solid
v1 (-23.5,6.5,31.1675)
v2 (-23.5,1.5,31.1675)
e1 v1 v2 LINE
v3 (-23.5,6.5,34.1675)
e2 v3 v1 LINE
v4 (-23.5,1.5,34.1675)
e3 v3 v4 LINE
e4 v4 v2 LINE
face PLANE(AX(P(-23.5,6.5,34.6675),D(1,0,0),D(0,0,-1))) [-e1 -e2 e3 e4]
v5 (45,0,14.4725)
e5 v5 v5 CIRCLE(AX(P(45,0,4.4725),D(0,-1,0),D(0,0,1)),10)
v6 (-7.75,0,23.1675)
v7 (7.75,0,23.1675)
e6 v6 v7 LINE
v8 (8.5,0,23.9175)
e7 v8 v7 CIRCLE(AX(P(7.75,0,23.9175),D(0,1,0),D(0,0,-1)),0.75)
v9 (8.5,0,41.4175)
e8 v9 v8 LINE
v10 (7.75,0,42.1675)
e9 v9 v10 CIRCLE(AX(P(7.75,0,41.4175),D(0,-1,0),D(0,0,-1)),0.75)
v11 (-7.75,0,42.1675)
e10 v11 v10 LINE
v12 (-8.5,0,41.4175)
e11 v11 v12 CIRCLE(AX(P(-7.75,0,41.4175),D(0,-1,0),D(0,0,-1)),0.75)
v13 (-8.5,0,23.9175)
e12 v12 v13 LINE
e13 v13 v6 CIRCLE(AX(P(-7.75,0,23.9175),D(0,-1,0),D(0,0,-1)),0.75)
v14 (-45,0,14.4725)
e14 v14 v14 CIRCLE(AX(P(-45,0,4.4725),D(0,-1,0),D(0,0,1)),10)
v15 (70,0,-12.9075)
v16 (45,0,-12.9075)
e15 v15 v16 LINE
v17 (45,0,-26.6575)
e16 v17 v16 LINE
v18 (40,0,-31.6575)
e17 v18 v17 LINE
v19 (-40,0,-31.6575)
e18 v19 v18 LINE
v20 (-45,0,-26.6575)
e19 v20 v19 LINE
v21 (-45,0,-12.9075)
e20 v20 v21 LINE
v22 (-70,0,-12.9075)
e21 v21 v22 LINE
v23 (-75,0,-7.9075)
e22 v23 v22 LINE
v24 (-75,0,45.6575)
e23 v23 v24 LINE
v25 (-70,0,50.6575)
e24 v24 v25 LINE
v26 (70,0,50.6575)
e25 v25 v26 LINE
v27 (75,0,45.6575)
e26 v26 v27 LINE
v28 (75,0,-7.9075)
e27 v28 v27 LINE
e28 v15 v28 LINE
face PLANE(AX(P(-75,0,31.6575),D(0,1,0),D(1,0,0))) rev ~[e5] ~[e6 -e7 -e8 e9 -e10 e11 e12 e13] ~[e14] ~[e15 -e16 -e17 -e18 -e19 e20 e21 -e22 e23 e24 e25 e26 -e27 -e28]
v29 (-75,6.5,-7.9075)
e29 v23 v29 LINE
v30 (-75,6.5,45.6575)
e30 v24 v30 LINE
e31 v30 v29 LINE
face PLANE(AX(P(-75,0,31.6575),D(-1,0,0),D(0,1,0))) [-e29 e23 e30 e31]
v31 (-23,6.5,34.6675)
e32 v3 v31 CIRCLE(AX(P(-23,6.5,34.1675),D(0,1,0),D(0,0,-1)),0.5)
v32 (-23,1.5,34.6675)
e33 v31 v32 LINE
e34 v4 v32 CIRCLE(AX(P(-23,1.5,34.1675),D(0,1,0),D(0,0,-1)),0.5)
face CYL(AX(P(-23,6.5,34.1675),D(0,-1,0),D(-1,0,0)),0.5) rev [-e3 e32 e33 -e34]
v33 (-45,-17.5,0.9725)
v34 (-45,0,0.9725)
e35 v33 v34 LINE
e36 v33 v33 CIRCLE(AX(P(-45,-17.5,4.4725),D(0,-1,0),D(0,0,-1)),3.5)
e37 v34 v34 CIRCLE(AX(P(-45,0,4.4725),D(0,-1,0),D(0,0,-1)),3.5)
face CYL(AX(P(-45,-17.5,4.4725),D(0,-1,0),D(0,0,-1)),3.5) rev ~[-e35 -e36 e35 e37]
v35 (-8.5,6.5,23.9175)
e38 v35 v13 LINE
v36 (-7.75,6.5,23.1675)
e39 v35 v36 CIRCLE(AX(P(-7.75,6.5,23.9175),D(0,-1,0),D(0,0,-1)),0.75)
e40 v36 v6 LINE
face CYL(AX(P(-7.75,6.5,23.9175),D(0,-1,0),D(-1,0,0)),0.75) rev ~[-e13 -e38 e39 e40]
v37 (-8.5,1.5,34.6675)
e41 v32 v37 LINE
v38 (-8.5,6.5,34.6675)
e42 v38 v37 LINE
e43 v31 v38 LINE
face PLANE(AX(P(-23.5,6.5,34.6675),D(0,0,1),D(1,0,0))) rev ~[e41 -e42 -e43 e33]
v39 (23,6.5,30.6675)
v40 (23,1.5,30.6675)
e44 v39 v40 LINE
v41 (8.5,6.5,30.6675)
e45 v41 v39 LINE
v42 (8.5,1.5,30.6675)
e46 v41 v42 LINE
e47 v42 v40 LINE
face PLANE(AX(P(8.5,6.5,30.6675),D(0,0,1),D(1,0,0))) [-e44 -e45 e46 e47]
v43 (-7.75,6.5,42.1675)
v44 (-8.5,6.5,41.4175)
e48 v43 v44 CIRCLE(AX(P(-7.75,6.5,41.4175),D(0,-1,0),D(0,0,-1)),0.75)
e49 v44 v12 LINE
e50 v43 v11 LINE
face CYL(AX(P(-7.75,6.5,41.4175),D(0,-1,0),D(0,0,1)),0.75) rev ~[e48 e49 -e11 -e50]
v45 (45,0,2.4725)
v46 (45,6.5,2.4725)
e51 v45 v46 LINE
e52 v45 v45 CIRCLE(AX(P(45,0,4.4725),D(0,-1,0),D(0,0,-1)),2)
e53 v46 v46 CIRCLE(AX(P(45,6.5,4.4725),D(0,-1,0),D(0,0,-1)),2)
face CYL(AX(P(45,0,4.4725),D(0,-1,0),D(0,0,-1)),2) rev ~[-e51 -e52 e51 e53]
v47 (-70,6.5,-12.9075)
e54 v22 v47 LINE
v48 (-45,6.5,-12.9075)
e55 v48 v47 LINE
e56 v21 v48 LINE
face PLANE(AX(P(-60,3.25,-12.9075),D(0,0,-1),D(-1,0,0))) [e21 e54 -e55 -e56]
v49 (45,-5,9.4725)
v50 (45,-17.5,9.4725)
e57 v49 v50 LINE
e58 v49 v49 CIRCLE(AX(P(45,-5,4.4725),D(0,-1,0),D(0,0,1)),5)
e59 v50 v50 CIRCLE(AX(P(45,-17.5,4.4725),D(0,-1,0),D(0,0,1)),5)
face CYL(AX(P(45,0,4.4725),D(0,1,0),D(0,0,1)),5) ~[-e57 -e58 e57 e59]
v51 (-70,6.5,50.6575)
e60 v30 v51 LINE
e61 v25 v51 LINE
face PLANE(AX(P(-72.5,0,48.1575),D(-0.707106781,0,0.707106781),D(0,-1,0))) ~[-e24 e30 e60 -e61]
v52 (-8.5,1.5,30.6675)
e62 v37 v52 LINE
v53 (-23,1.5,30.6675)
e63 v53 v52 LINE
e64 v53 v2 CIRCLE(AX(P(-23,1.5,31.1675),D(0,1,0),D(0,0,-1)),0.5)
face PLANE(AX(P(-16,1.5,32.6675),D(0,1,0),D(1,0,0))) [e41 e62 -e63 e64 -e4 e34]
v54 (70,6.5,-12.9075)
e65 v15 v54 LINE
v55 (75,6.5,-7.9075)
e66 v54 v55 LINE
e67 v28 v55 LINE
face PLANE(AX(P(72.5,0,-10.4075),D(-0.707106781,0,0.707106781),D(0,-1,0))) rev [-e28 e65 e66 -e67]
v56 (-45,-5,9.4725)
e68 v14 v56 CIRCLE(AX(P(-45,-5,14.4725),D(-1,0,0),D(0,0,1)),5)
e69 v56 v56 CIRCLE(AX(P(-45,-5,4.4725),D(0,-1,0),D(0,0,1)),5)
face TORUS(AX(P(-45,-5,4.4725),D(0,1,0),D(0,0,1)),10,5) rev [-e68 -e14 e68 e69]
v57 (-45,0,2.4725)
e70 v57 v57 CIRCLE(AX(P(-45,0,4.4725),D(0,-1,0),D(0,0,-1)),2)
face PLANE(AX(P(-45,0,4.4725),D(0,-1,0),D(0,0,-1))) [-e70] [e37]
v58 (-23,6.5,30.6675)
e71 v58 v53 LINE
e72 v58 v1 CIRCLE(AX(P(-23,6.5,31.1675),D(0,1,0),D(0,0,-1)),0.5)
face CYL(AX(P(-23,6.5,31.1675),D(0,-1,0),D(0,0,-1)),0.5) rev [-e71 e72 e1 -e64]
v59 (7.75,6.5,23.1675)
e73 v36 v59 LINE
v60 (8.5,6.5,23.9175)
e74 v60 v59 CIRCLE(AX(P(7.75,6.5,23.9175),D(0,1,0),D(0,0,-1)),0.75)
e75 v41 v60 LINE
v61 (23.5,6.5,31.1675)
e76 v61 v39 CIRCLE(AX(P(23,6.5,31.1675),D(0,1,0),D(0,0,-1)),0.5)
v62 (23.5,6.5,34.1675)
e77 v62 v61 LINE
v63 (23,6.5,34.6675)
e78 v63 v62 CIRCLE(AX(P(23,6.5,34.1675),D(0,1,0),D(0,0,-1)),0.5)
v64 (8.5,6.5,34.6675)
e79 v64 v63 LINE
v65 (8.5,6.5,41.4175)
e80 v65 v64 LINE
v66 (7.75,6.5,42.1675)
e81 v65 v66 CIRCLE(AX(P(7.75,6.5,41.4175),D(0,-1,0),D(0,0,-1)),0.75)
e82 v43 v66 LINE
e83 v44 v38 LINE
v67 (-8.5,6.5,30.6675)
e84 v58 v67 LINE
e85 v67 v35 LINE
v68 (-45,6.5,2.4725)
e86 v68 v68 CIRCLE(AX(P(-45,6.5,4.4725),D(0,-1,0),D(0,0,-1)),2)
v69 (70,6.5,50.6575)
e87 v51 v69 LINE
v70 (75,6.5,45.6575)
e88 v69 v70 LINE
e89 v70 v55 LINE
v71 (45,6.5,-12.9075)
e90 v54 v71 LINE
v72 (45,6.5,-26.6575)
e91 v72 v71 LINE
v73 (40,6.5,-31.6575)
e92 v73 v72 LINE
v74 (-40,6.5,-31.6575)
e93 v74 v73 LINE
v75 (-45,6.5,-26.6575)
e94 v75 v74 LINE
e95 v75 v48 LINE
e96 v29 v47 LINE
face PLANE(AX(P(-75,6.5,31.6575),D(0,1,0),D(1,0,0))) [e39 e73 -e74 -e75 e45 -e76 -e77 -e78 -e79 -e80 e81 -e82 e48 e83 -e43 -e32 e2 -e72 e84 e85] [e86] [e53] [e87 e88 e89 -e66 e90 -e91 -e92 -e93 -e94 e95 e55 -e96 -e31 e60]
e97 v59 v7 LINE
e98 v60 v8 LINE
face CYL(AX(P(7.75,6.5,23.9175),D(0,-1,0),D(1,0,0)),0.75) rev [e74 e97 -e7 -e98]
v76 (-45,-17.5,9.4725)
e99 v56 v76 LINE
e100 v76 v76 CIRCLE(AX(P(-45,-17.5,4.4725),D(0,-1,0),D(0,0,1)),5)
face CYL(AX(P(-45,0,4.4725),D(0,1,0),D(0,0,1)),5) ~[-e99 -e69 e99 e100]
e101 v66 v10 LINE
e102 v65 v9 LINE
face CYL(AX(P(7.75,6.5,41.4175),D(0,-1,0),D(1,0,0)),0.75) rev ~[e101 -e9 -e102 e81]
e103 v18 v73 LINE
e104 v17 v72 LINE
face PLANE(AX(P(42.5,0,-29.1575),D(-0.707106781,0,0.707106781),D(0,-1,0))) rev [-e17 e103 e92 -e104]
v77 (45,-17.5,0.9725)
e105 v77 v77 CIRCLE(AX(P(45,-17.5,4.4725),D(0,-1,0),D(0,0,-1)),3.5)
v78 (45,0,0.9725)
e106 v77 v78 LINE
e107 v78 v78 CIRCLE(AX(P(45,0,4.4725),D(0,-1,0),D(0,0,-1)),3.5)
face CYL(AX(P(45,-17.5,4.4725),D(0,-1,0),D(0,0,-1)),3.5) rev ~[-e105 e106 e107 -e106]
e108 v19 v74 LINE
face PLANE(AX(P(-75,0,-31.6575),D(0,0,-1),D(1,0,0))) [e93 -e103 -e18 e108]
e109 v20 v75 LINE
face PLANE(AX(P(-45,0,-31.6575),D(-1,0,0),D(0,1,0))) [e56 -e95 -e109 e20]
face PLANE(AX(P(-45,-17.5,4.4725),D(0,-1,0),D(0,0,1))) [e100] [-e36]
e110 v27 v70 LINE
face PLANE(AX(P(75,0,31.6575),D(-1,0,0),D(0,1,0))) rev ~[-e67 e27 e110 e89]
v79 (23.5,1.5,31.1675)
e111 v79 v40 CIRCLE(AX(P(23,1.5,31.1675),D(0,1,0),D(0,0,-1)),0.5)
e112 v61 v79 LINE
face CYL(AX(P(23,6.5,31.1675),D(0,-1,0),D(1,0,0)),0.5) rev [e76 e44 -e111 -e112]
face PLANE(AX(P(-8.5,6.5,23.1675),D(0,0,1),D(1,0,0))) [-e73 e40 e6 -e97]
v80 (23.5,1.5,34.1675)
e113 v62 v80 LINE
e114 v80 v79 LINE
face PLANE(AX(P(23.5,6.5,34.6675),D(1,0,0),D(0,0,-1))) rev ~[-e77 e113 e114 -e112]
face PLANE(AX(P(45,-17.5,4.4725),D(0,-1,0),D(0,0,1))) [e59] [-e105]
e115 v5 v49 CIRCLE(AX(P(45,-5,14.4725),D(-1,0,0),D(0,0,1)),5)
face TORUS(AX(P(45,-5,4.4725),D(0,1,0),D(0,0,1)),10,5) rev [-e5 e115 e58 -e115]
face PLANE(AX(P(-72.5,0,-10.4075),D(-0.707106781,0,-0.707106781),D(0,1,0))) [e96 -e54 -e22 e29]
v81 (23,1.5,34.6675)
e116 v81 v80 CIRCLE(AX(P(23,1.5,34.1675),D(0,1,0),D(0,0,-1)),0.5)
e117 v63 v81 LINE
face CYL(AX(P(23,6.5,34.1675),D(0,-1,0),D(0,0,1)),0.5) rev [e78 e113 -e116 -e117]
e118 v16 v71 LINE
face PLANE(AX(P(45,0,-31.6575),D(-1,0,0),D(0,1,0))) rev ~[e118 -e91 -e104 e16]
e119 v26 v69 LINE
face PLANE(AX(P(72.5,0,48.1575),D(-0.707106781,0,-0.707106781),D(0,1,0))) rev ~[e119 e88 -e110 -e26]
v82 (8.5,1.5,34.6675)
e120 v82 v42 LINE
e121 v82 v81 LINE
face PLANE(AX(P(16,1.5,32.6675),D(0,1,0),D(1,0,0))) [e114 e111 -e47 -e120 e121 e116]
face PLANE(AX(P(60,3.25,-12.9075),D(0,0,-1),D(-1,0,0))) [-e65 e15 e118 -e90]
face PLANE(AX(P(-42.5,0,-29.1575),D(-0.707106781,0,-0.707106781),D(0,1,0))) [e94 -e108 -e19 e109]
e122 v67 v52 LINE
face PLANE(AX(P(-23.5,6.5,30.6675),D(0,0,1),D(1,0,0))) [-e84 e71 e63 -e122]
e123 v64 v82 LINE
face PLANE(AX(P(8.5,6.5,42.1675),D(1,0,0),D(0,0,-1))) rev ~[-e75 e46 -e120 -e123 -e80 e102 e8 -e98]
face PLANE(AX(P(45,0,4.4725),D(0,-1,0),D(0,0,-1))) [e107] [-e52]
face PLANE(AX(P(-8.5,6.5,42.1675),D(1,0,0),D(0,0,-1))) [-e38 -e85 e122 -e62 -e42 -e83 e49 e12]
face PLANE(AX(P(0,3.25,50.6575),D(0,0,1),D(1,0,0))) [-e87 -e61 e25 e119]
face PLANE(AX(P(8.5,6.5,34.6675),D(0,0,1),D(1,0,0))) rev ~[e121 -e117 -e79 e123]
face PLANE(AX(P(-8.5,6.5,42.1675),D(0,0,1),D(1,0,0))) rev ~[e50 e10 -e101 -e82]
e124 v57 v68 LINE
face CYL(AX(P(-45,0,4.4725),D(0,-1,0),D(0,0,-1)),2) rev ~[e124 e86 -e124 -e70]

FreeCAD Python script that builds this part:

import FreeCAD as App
import Part
import Sketcher


def edges_at(feature, points):
    """Names of the edges that pass closest to the given points."""
    edges = feature.Shape.Edges
    near = lambda p: min(range(len(edges)), key=lambda i: edges[i].distToShape(Part.Vertex(*p))[0])
    return sorted({f"Edge{near(p) + 1}" for p in points})


def add_polygon(sketch, points):
    """Adds a closed chain of lines whose ends are joined by coincident constraints."""
    first, n = sketch.GeometryCount, len(points)
    for a, b in zip(points, points[1:] + points[:1]):
        sketch.addGeometry(Part.LineSegment(App.Vector(*a, 0), App.Vector(*b, 0)), False)
    for i in range(n):
        sketch.addConstraint(Sketcher.Constraint("Coincident", first + i, 2, first + (i + 1) % n, 1))

doc = App.newDocument("Part")
body = doc.addObject("PartDesign::Body", "Body")

sketch1 = body.newObject("Sketcher::SketchObject", "Sketch")
sketch1.AttachmentSupport = (doc.getObject("XZ_Plane"), [""])
sketch1.MapMode = "FlatFace"
add_polygon(sketch1, [(-75, -31.6575), (-75, 31.6575), (75, 31.6575), (75, -31.6575)])
sketch1.addConstraint(Sketcher.Constraint("Vertical", 0))
sketch1.addConstraint(Sketcher.Constraint("Horizontal", 1))
sketch1.addConstraint(Sketcher.Constraint("Vertical", 2))
sketch1.addConstraint(Sketcher.Constraint("Horizontal", 3))
sketch1.addConstraint(Sketcher.Constraint("Symmetric", 0, 2, 2, 2, -1, 1))
sketch1.addConstraint(Sketcher.Constraint("DistanceX", 1, 1, 1, 2, 150.0))
sketch1.addConstraint(Sketcher.Constraint("DistanceY", 0, 1, 0, 2, 63.315))
pad1 = body.newObject("PartDesign::Pad", "Pad")
pad1.Profile = sketch1
pad1.Length = 6.5
pad1.Reversed = True

sketch2 = body.newObject("Sketcher::SketchObject", "Sketch001")
sketch2.AttachmentSupport = (doc.getObject("XY_Plane"), [""])
sketch2.MapMode = "FlatFace"
sketch2.AttachmentOffset = App.Placement(App.Vector(0, 0, -31.6575), App.Rotation())
add_polygon(sketch2, [(75, 6.5), (75, 0), (45, 0), (45, 6.5)])
add_polygon(sketch2, [(-45, 6.5), (-45, 0), (-75, 0), (-75, 6.5)])
sketch2.addConstraint(Sketcher.Constraint("Vertical", 0))
sketch2.addConstraint(Sketcher.Constraint("Horizontal", 1))
sketch2.addConstraint(Sketcher.Constraint("Vertical", 2))
sketch2.addConstraint(Sketcher.Constraint("Horizontal", 3))
sketch2.addConstraint(Sketcher.Constraint("Vertical", 4))
sketch2.addConstraint(Sketcher.Constraint("Horizontal", 5))
sketch2.addConstraint(Sketcher.Constraint("Vertical", 6))
sketch2.addConstraint(Sketcher.Constraint("Horizontal", 7))
sketch2.addConstraint(Sketcher.Constraint("Symmetric", 1, 2, 4, 2, -1, 1))
sketch2.addConstraint(Sketcher.Constraint("Symmetric", 0, 2, 5, 2, -2))
sketch2.addConstraint(Sketcher.Constraint("Horizontal", 3, 2, 6, 2))
sketch2.addConstraint(Sketcher.Constraint("DistanceX", 1, 2, 1, 1, 30.0))
sketch2.addConstraint(Sketcher.Constraint("DistanceY", 0, 2, 0, 1, 6.5))
sketch2.addConstraint(Sketcher.Constraint("DistanceX", -1, 1, 0, 2, 75.0))
pocket1 = body.newObject("PartDesign::Pocket", "Pocket")
pocket1.Profile = sketch2
pocket1.Length = 18.75
pocket1.Reversed = True
doc.recompute()

chamfer = body.newObject("PartDesign::Chamfer", "Chamfer")
chamfer.Base = (pocket1, edges_at(pocket1, [
    (75, 3.25, -12.908),
    (45, 3.25, -31.657),
    (-75, 3.25, -12.908),
    (-45, 3.25, -31.657),
]))
chamfer.Size = 5

sketch3 = body.newObject("Sketcher::SketchObject", "Sketch002")
sketch3.AttachmentSupport = (doc.getObject("XZ_Plane"), [""])
sketch3.MapMode = "FlatFace"
sketch3.addGeometry(Part.Circle(App.Vector(45, 4.4725, 0), App.Vector(0, 0, 1), 5), False)
sketch3.addGeometry(Part.Circle(App.Vector(-45, 4.4725, 0), App.Vector(0, 0, 1), 5), False)
sketch3.addConstraint(Sketcher.Constraint("Equal", 0, 1))
sketch3.addConstraint(Sketcher.Constraint("Symmetric", 0, 3, 1, 3, -2))
sketch3.addConstraint(Sketcher.Constraint("Diameter", 0, 10.0))
sketch3.addConstraint(Sketcher.Constraint("DistanceX", -1, 1, 0, 3, 45.0))
sketch3.addConstraint(Sketcher.Constraint("DistanceY", -1, 1, 0, 3, 4.4725))
pad2 = body.newObject("PartDesign::Pad", "Pad001")
pad2.Profile = sketch3
pad2.Length = 17.5
doc.recompute()

fillet = body.newObject("PartDesign::Fillet", "Fillet")
fillet.Base = (pad2, edges_at(pad2, [(45, 0, -0.527), (-45, 0, -0.527)]))
fillet.Radius = 5

sketch4 = body.newObject("Sketcher::SketchObject", "Sketch003")
sketch4.AttachmentSupport = (doc.getObject("XZ_Plane"), [""])
sketch4.MapMode = "FlatFace"
sketch4.AttachmentOffset = App.Placement(App.Vector(0, 0, 17.5), App.Rotation())
sketch4.addGeometry(Part.Circle(App.Vector(45, 4.4725, 0), App.Vector(0, 0, 1), 3.5), False)
sketch4.addConstraint(Sketcher.Constraint("Diameter", 0, 7.0))
sketch4.addConstraint(Sketcher.Constraint("DistanceX", -1, 1, 0, 3, 45.0))
sketch4.addConstraint(Sketcher.Constraint("DistanceY", -1, 1, 0, 3, 4.4725))
pocket2 = body.newObject("PartDesign::Pocket", "Pocket001")
pocket2.Profile = sketch4
pocket2.Length = 17.5

sketch5 = body.newObject("Sketcher::SketchObject", "Sketch004")
sketch5.AttachmentSupport = (doc.getObject("XZ_Plane"), [""])
sketch5.MapMode = "FlatFace"
sketch5.AttachmentOffset = App.Placement(App.Vector(0, 0, 17.5), App.Rotation())
sketch5.addGeometry(Part.Circle(App.Vector(-45, 4.4725, 0), App.Vector(0, 0, 1), 3.5), False)
sketch5.addConstraint(Sketcher.Constraint("Diameter", 0, 7.0))
sketch5.addConstraint(Sketcher.Constraint("DistanceX", 0, 3, -1, 1, 45.0))
sketch5.addConstraint(Sketcher.Constraint("DistanceY", -1, 1, 0, 3, 4.4725))
pocket3 = body.newObject("PartDesign::Pocket", "Pocket002")
pocket3.Profile = sketch5
pocket3.Length = 17.5

sketch6 = body.newObject("Sketcher::SketchObject", "Sketch005")
sketch6.AttachmentSupport = (doc.getObject("XZ_Plane"), [""])
sketch6.MapMode = "FlatFace"
sketch6.addGeometry(Part.Circle(App.Vector(45, 4.4725, 0), App.Vector(0, 0, 1), 2), False)
sketch6.addGeometry(Part.Circle(App.Vector(-45, 4.4725, 0), App.Vector(0, 0, 1), 2), False)
sketch6.addConstraint(Sketcher.Constraint("Equal", 0, 1))
sketch6.addConstraint(Sketcher.Constraint("Symmetric", 0, 3, 1, 3, -2))
sketch6.addConstraint(Sketcher.Constraint("Diameter", 0, 4.0))
sketch6.addConstraint(Sketcher.Constraint("DistanceX", -1, 1, 0, 3, 45.0))
sketch6.addConstraint(Sketcher.Constraint("DistanceY", -1, 1, 0, 3, 4.4725))
pocket4 = body.newObject("PartDesign::Pocket", "Pocket003")
pocket4.Profile = sketch6
pocket4.Length = 6.5

sketch7 = body.newObject("Sketcher::SketchObject", "Sketch006")
sketch7.AttachmentSupport = (doc.getObject("XY_Plane"), [""])
sketch7.MapMode = "FlatFace"
sketch7.AttachmentOffset = App.Placement(App.Vector(0, 0, 31.6575), App.Rotation())
add_polygon(sketch7, [(-75, 6.5), (-75, 0), (75, 0), (75, 6.5)])
sketch7.addConstraint(Sketcher.Constraint("Vertical", 0))
sketch7.addConstraint(Sketcher.Constraint("Horizontal", 1))
sketch7.addConstraint(Sketcher.Constraint("Vertical", 2))
sketch7.addConstraint(Sketcher.Constraint("Horizontal", 3))
sketch7.addConstraint(Sketcher.Constraint("Symmetric", 0, 2, 1, 2, -1, 1))
sketch7.addConstraint(Sketcher.Constraint("DistanceX", 1, 1, 1, 2, 150.0))
sketch7.addConstraint(Sketcher.Constraint("DistanceY", 0, 2, 0, 1, 6.5))
pad3 = body.newObject("PartDesign::Pad", "Pad002")
pad3.Profile = sketch7
pad3.Length = 19

sketch8 = body.newObject("Sketcher::SketchObject", "Sketch007")
sketch8.AttachmentSupport = (doc.getObject("XZ_Plane"), [""])
sketch8.MapMode = "FlatFace"
sketch8.AttachmentOffset = App.Placement(App.Vector(0, 0, -6.5), App.Rotation())
add_polygon(sketch8, [(-8.5, 23.1675), (-8.5, 42.1675), (8.5, 42.1675), (8.5, 23.1675)])
sketch8.addConstraint(Sketcher.Constraint("Vertical", 0))
sketch8.addConstraint(Sketcher.Constraint("Horizontal", 1))
sketch8.addConstraint(Sketcher.Constraint("Vertical", 2))
sketch8.addConstraint(Sketcher.Constraint("Horizontal", 3))
sketch8.addConstraint(Sketcher.Constraint("DistanceX", 1, 1, 1, 2, 17.0))
sketch8.addConstraint(Sketcher.Constraint("DistanceY", 0, 1, 0, 2, 19.0))
sketch8.addConstraint(Sketcher.Constraint("DistanceX", 0, 2, -1, 1, 8.5))
sketch8.addConstraint(Sketcher.Constraint("DistanceY", -1, 1, 0, 2, 42.1675))
pocket5 = body.newObject("PartDesign::Pocket", "Pocket004")
pocket5.Profile = sketch8
pocket5.Length = 19
pocket5.Reversed = True

sketch9 = body.newObject("Sketcher::SketchObject", "Sketch008")
sketch9.AttachmentSupport = (doc.getObject("XZ_Plane"), [""])
sketch9.MapMode = "FlatFace"
sketch9.AttachmentOffset = App.Placement(App.Vector(0, 0, -6.5), App.Rotation())
add_polygon(sketch9, [(-23.5, 30.6675), (-23.5, 34.6675), (-8.5, 34.6675), (-8.5, 30.6675)])
add_polygon(sketch9, [(8.5, 30.6675), (8.5, 34.6675), (23.5, 34.6675), (23.5, 30.6675)])
sketch9.addConstraint(Sketcher.Constraint("Vertical", 0))
sketch9.addConstraint(Sketcher.Constraint("Horizontal", 1))
sketch9.addConstraint(Sketcher.Constraint("Vertical", 2))
sketch9.addConstraint(Sketcher.Constraint("Horizontal", 3))
sketch9.addConstraint(Sketcher.Constraint("Vertical", 4))
sketch9.addConstraint(Sketcher.Constraint("Horizontal", 5))
sketch9.addConstraint(Sketcher.Constraint("Vertical", 6))
sketch9.addConstraint(Sketcher.Constraint("Horizontal", 7))
sketch9.addConstraint(Sketcher.Constraint("Symmetric", 1, 2, 4, 2, -2))
sketch9.addConstraint(Sketcher.Constraint("Symmetric", 3, 2, 6, 2, -2))
sketch9.addConstraint(Sketcher.Constraint("DistanceX", 1, 1, 1, 2, 15.0))
sketch9.addConstraint(Sketcher.Constraint("DistanceY", 0, 1, 0, 2, 4.0))
sketch9.addConstraint(Sketcher.Constraint("DistanceX", 1, 2, 4, 2, 17.0))
sketch9.addConstraint(Sketcher.Constraint("DistanceY", -1, 1, 0, 2, 34.6675))
pocket6 = body.newObject("PartDesign::Pocket", "Pocket005")
pocket6.Profile = sketch9
pocket6.Length = 5
pocket6.Reversed = True
doc.recompute()

fillet2 = body.newObject("PartDesign::Fillet", "Fillet001")
fillet2.Base = (pocket6, edges_at(pocket6, [
    (-23.5, 4, 34.667),
    (-23.5, 4, 30.668),
    (23.5, 4, 30.668),
    (23.5, 4, 34.667),
]))
fillet2.Radius = 0.5
doc.recompute()

fillet3 = body.newObject("PartDesign::Fillet", "Fillet002")
fillet3.Base = (fillet2, edges_at(fillet2, [
    (8.5, 3.25, 42.167),
    (-8.5, 3.25, 42.167),
    (-8.5, 3.25, 23.168),
    (8.5, 3.25, 23.168),
]))
fillet3.Radius = 0.75
doc.recompute()

chamfer2 = body.newObject("PartDesign::Chamfer", "Chamfer001")
chamfer2.Base = (fillet3, edges_at(fillet3, [(-75, 3.25, 50.657), (75, 3.25, 50.657)]))
chamfer2.Size = 5

doc.recompute()
